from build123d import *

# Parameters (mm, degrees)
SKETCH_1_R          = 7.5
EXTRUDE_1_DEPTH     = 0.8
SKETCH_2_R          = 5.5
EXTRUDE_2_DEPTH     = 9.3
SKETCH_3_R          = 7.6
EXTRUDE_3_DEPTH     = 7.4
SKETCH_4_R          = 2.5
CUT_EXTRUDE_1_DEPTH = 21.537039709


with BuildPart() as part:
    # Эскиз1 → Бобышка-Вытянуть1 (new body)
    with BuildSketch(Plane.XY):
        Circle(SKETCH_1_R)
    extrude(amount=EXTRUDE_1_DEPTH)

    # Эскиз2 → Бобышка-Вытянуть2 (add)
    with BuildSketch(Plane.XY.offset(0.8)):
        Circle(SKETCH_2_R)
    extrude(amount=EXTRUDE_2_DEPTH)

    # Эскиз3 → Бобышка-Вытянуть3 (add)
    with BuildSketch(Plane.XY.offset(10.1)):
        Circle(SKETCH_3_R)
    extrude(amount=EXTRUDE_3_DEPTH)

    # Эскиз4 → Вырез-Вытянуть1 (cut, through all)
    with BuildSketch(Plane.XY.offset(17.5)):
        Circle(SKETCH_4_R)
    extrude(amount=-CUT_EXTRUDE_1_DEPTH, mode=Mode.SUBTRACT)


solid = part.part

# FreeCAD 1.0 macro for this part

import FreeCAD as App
import Part
import Sketcher
from FreeCAD import Vector
Q = App.Units.Quantity

doc = App.newDocument("Part")
body = doc.addObject("PartDesign::Body", "Body")

sketch1 = body.newObject("Sketcher::SketchObject", "Sketch")
sketch1.AttachmentSupport = (doc.getObject("XY_Plane"), [""])
sketch1.MapMode = "FlatFace"
sketch1.addGeometry(Part.Circle(Vector(0, 0, 0), Vector(0, 0, 1), 8), False)
sketch1.addConstraint([
    Sketcher.Constraint("Coincident", 0, 3, -1, 1),
    Sketcher.Constraint("Diameter", 0, Q("15 mm")),
])
pad1 = body.newObject("PartDesign::Pad", "Pad")
pad1.Profile = sketch1
pad1.Length = 0.8

sketch2 = body.newObject("Sketcher::SketchObject", "Sketch001")
sketch2.AttachmentSupport = (doc.getObject("XY_Plane"), [""])
sketch2.MapMode = "FlatFace"
sketch2.AttachmentOffset = App.Placement(Vector(0, 0, 0.8), App.Rotation())
sketch2.addGeometry(Part.Circle(Vector(0, 0, 0), Vector(0, 0, 1), 6), False)
sketch2.addConstraint([
    Sketcher.Constraint("Coincident", 0, 3, -1, 1),
    Sketcher.Constraint("Diameter", 0, Q("11 mm")),
])
pad2 = body.newObject("PartDesign::Pad", "Pad001")
pad2.Profile = sketch2
pad2.Length = 9.3

sketch3 = body.newObject("Sketcher::SketchObject", "Sketch002")
sketch3.AttachmentSupport = (doc.getObject("XY_Plane"), [""])
sketch3.MapMode = "FlatFace"
sketch3.AttachmentOffset = App.Placement(Vector(0, 0, 10.1), App.Rotation())
sketch3.addGeometry(Part.Circle(Vector(0, 0, 0), Vector(0, 0, 1), 8), False)
sketch3.addConstraint([
    Sketcher.Constraint("Coincident", 0, 3, -1, 1),
    Sketcher.Constraint("Diameter", 0, Q("15.2 mm")),
])
pad3 = body.newObject("PartDesign::Pad", "Pad002")
pad3.Profile = sketch3
pad3.Length = 7.4

sketch4 = body.newObject("Sketcher::SketchObject", "Sketch003")
sketch4.AttachmentSupport = (doc.getObject("XY_Plane"), [""])
sketch4.MapMode = "FlatFace"
sketch4.AttachmentOffset = App.Placement(Vector(0, 0, 17.5), App.Rotation())
sketch4.addGeometry(Part.Circle(Vector(0, 0, 0), Vector(0, 0, 1), 2.5), False)
sketch4.addConstraint([
    Sketcher.Constraint("Coincident", 0, 3, -1, 1),
    Sketcher.Constraint("Diameter", 0, Q("5 mm")),
])
pocket1 = body.newObject("PartDesign::Pocket", "Pocket")
pocket1.Profile = sketch4
pocket1.Type = "ThroughAll"

doc.recompute()
